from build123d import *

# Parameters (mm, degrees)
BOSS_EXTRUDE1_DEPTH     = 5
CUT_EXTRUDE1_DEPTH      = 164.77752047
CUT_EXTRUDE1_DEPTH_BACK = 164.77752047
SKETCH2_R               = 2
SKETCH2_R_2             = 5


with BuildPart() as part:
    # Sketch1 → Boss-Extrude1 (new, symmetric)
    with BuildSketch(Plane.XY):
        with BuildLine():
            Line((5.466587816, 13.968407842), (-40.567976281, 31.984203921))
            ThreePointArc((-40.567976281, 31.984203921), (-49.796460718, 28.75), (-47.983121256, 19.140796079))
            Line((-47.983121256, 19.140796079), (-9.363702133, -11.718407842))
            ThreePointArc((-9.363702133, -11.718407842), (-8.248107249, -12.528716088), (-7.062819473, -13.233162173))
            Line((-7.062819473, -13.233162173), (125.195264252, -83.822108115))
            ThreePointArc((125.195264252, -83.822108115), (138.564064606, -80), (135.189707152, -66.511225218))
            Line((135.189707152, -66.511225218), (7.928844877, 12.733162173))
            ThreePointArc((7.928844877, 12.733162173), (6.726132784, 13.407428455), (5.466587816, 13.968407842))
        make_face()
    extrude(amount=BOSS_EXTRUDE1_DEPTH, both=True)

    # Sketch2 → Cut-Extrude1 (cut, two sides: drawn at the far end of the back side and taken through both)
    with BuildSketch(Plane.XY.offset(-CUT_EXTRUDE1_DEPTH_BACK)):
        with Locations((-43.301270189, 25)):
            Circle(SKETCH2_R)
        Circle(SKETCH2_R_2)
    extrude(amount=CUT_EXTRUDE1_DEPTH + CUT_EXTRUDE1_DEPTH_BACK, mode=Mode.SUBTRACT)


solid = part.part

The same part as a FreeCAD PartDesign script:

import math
import FreeCAD as App
import Part
import Sketcher

V = App.Vector

doc = App.newDocument("Part")
body = doc.addObject("PartDesign::Body", "Body")

# Sketch on XY plane
sketch1 = body.newObject("Sketcher::SketchObject", "Sketch")
sketch1.AttachmentSupport = (doc.getObject("XY_Plane"), [""])
sketch1.MapMode = "FlatFace"
sketch1.addGeometry([
    Part.LineSegment(V(5.5, 14, 0), V(-40.6, 32, 0)),  # 0
    Part.ArcOfCircle(Part.Circle(V(-43.3, 25, 0), V(0, 0, 1), 7.5), math.radians(69), math.radians(231)),  # 1
    Part.LineSegment(V(-48, 19.1, 0), V(-9.4, -11.7, 0)),  # 2
    Part.ArcOfCircle(Part.Circle(V(0, 0, 0), V(0, 0, 1), 15), math.radians(-128.63), math.radians(-118.09)),  # 3
    Part.LineSegment(V(-7.1, -13.2, 0), V(125.2, -83.8, 0)),  # 4
    Part.ArcOfCircle(Part.Circle(V(129.9, -75, 0), V(0, 0, 1), 10), math.radians(-118), math.radians(58)),  # 5
    Part.LineSegment(V(135.2, -66.5, 0), V(7.9, 12.7, 0)),  # 6
    Part.ArcOfCircle(Part.Circle(V(0, 0, 0), V(0, 0, 1), 15), math.radians(58.09), math.radians(68.63)),  # 7
], False)
sketch1.addConstraint([
    Sketcher.Constraint("Tangent", 0, 2, 1, 1),
    Sketcher.Constraint("Tangent", 1, 2, 2, 1),
    Sketcher.Constraint("Tangent", 2, 2, 3, 1),
    Sketcher.Constraint("Tangent", 3, 2, 4, 1),
    Sketcher.Constraint("Tangent", 4, 2, 5, 1),
    Sketcher.Constraint("Tangent", 5, 2, 6, 1),
    Sketcher.Constraint("Tangent", 6, 2, 7, 1),
    Sketcher.Constraint("Tangent", 7, 2, 0, 1),
    Sketcher.Constraint("Coincident", 3, 3, -1, 1),
    Sketcher.Constraint("Coincident", 7, 3, -1, 1),
    Sketcher.Constraint("Equal", 3, 7),
    Sketcher.Constraint("Radius", 3, 15.0),
    Sketcher.Constraint("Radius", 5, 10.0),
    Sketcher.Constraint("Radius", 1, 7.5),
    Sketcher.Constraint("DistanceY", -1, 1, 1, 3, 25.0),
    Sketcher.Constraint("DistanceY", 5, 3, -1, 1, 75.0),
    Sketcher.Constraint("Distance", 0, 49.4343),
    Sketcher.Constraint("DistanceY", 4, 2, 2, 2, 72.1037),
])
pad1 = body.newObject("PartDesign::Pad", "Pad")
pad1.Profile = sketch1
pad1.Length = 10
pad1.Midplane = True

# Sketch on XY plane
sketch2 = body.newObject("Sketcher::SketchObject", "Sketch001")
sketch2.AttachmentSupport = (doc.getObject("XY_Plane"), [""])
sketch2.MapMode = "FlatFace"
sketch2.addGeometry([
    Part.Circle(V(-43.3, 25, 0), V(0, 0, 1), 2),
    Part.Circle(V(0, 0, 0), V(0, 0, 1), 5),
], False)
sketch2.addConstraint([
    Sketcher.Constraint("Coincident", 1, 3, -1, 1),
    Sketcher.Constraint("Diameter", 0, 4.0),
    Sketcher.Constraint("Diameter", 1, 10.0),
    Sketcher.Constraint("DistanceY", -1, 1, 0, 3, 25.0),
    Sketcher.Constraint("DistanceX", 0, 3, -1, 1, 43.30127),
])
pocket1 = body.newObject("PartDesign::Pocket", "Pocket")
pocket1.Profile = sketch2
pocket1.Type = "ThroughAll"
pocket1.Midplane = True

doc.recompute()
